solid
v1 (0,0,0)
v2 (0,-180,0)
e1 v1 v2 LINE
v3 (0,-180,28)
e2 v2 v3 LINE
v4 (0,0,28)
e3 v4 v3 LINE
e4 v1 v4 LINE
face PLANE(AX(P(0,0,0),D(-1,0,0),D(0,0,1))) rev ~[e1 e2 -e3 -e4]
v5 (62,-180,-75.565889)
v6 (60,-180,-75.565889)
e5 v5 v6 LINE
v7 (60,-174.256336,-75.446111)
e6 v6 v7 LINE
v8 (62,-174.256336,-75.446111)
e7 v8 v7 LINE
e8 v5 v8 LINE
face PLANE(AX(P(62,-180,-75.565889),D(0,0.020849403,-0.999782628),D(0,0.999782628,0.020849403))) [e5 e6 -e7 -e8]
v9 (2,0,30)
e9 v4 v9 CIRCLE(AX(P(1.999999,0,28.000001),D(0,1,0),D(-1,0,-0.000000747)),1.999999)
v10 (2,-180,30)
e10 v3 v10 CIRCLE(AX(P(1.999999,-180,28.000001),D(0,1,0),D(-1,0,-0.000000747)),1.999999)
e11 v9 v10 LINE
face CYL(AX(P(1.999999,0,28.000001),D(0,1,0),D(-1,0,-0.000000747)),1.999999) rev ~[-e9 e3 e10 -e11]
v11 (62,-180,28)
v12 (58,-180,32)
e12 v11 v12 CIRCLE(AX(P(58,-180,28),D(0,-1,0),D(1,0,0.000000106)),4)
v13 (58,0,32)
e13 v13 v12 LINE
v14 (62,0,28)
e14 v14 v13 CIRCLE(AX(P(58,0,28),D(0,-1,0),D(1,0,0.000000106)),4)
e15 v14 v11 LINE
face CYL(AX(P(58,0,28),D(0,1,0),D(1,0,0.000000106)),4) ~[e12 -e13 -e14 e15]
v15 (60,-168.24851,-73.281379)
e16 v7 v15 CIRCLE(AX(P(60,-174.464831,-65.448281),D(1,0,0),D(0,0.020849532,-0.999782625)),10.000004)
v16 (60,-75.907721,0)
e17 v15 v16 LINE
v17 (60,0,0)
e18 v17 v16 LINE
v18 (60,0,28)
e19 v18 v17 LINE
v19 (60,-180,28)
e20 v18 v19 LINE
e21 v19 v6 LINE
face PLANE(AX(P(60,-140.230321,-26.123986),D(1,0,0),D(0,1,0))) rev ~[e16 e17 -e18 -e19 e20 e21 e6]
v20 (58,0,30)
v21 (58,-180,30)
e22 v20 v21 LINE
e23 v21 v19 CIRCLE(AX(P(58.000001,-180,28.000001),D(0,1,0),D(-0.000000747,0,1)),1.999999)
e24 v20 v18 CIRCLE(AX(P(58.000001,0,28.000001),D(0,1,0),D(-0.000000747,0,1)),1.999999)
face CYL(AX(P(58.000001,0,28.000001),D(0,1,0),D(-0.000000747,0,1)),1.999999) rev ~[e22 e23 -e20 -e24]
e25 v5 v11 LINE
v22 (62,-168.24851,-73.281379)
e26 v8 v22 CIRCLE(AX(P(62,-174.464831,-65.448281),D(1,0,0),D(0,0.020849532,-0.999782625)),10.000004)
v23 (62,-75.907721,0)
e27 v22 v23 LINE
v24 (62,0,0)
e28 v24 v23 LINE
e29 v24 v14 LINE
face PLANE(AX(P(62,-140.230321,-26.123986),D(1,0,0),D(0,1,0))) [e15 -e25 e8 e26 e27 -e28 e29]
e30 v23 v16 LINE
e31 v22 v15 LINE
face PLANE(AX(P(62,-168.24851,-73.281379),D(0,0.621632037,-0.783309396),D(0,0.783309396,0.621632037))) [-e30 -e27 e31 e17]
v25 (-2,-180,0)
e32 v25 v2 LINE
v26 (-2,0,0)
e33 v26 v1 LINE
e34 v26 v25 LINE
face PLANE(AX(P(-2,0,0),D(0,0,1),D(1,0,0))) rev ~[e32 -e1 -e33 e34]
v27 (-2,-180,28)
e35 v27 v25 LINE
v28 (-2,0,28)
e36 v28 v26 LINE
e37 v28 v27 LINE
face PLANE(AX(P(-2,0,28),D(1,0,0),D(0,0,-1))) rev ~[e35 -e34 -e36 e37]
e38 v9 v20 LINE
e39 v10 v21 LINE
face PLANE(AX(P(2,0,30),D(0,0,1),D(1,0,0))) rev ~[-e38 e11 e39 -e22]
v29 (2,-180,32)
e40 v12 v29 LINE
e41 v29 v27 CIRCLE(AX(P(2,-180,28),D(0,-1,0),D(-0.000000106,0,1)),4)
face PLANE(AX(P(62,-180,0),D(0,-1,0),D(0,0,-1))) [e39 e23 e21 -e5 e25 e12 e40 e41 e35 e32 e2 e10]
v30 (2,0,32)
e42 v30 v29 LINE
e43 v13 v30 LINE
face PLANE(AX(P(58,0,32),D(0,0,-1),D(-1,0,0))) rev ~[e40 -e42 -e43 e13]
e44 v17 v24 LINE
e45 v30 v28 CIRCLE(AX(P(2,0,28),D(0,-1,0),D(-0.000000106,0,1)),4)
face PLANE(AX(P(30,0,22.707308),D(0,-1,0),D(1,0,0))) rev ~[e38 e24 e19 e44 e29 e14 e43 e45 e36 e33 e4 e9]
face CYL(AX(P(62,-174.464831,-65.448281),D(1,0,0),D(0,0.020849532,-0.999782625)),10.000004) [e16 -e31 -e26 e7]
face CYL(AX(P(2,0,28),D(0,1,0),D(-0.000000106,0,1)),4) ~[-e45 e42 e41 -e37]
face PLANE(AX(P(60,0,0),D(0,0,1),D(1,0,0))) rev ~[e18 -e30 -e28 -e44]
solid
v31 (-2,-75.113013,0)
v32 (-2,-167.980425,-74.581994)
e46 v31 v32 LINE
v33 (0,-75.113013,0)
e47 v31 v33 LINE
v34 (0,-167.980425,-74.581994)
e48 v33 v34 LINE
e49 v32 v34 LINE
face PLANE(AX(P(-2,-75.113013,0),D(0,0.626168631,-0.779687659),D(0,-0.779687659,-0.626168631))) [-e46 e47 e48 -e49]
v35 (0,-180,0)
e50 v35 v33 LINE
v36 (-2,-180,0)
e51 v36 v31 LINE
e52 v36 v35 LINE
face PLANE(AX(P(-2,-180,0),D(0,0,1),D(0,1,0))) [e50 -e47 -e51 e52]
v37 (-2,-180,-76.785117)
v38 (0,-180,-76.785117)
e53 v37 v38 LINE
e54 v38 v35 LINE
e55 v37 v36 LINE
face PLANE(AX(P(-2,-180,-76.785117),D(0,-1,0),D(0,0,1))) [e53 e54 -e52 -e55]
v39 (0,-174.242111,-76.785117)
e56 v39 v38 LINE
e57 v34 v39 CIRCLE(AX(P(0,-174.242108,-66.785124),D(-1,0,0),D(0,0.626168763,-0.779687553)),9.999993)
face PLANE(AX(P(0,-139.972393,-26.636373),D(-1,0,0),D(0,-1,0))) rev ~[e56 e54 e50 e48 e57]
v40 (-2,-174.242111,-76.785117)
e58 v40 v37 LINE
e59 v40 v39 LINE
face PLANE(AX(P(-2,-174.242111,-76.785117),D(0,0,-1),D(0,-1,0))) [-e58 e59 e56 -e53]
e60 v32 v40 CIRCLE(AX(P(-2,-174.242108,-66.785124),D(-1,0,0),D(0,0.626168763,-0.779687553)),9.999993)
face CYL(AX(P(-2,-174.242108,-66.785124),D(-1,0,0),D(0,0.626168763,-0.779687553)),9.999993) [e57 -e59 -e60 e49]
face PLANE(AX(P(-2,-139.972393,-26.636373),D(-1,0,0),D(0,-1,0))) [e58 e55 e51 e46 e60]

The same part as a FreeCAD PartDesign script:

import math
import FreeCAD as App
import Part
import Sketcher
Q = App.Units.Quantity

doc = App.newDocument("Part")
body = doc.addObject("PartDesign::Body", "Body")

# Sketch on XZ plane
sketch1 = body.newObject("Sketcher::SketchObject", "Sketch")
sketch1.AttachmentSupport = (doc.getObject("XZ_Plane"), [""])
sketch1.MapMode = "FlatFace"
sketch1.addGeometry(Part.LineSegment(App.Vector(-2, 0, 0), App.Vector(0, 0, 0)), False)
sketch1.addGeometry(Part.LineSegment(App.Vector(0, 0, 0), App.Vector(0, 28, 0)), False)
sketch1.addGeometry(Part.ArcOfCircle(Part.Circle(App.Vector(2, 28, 0), App.Vector(0, 0, 1), 2), math.radians(90), math.radians(180)), False)
sketch1.addGeometry(Part.LineSegment(App.Vector(2, 30, 0), App.Vector(58, 30, 0)), False)
sketch1.addGeometry(Part.ArcOfCircle(Part.Circle(App.Vector(58, 28, 0), App.Vector(0, 0, 1), 2), math.radians(0), math.radians(90)), False)
sketch1.addGeometry(Part.LineSegment(App.Vector(60, 28, 0), App.Vector(60, 0, 0)), False)
sketch1.addGeometry(Part.LineSegment(App.Vector(60, 0, 0), App.Vector(62, 0, 0)), False)
sketch1.addGeometry(Part.LineSegment(App.Vector(62, 0, 0), App.Vector(62, 28, 0)), False)
sketch1.addGeometry(Part.ArcOfCircle(Part.Circle(App.Vector(58, 28, 0), App.Vector(0, 0, 1), 4), math.radians(0), math.radians(90)), False)
sketch1.addGeometry(Part.LineSegment(App.Vector(58, 32, 0), App.Vector(2, 32, 0)), False)
sketch1.addGeometry(Part.ArcOfCircle(Part.Circle(App.Vector(2, 28, 0), App.Vector(0, 0, 1), 4), math.radians(90), math.radians(180)), False)
sketch1.addGeometry(Part.LineSegment(App.Vector(-2, 28, 0), App.Vector(-2, 0, 0)), False)
sketch1.addConstraint(Sketcher.Constraint("Coincident", 0, 2, 1, 1))
sketch1.addConstraint(Sketcher.Constraint("Tangent", 1, 2, 2, 2))
sketch1.addConstraint(Sketcher.Constraint("Tangent", 2, 1, 3, 1))
sketch1.addConstraint(Sketcher.Constraint("Tangent", 3, 2, 4, 2))
sketch1.addConstraint(Sketcher.Constraint("Tangent", 4, 1, 5, 1))
sketch1.addConstraint(Sketcher.Constraint("Coincident", 5, 2, 6, 1))
sketch1.addConstraint(Sketcher.Constraint("Coincident", 6, 2, 7, 1))
sketch1.addConstraint(Sketcher.Constraint("Tangent", 7, 2, 8, 1))
sketch1.addConstraint(Sketcher.Constraint("Tangent", 8, 2, 9, 1))
sketch1.addConstraint(Sketcher.Constraint("Tangent", 9, 2, 10, 1))
sketch1.addConstraint(Sketcher.Constraint("Tangent", 10, 2, 11, 1))
sketch1.addConstraint(Sketcher.Constraint("Coincident", 11, 2, 0, 1))
sketch1.addConstraint(Sketcher.Constraint("Horizontal", 0))
sketch1.addConstraint(Sketcher.Constraint("Vertical", 1))
sketch1.addConstraint(Sketcher.Constraint("Horizontal", 3))
sketch1.addConstraint(Sketcher.Constraint("Vertical", 5))
sketch1.addConstraint(Sketcher.Constraint("Horizontal", 6))
sketch1.addConstraint(Sketcher.Constraint("Vertical", 7))
sketch1.addConstraint(Sketcher.Constraint("Horizontal", 9))
sketch1.addConstraint(Sketcher.Constraint("Vertical", 11))
sketch1.addConstraint(Sketcher.Constraint("Coincident", 0, 2, -1, 1))
sketch1.addConstraint(Sketcher.Constraint("Coincident", 8, 3, 4, 3))
sketch1.addConstraint(Sketcher.Constraint("Coincident", 10, 3, 2, 3))
sketch1.addConstraint(Sketcher.Constraint("Equal", 2, 4))
sketch1.addConstraint(Sketcher.Constraint("PointOnObject", 5, 2, -1))
sketch1.addConstraint(Sketcher.Constraint("Radius", 2, Q("1.999999 mm")))
sketch1.addConstraint(Sketcher.Constraint("Radius", 8, Q("4 mm")))
sketch1.addConstraint(Sketcher.Constraint("DistanceX", 3, 1, 3, 2, Q("56 mm")))
sketch1.addConstraint(Sketcher.Constraint("DistanceY", 1, 1, 1, 2, Q("28 mm")))
pad1 = body.newObject("PartDesign::Pad", "Pad")
pad1.Profile = sketch1
pad1.Length = 180

# Sketch on YZ plane
sketch2 = body.newObject("Sketcher::SketchObject", "Sketch001")
sketch2.AttachmentSupport = (doc.getObject("YZ_Plane"), [""])
sketch2.MapMode = "FlatFace"
sketch2.AttachmentOffset = App.Placement(App.Vector(0, 0, 62), App.Rotation())
sketch2.addGeometry(Part.LineSegment(App.Vector(-76, 0, 0), App.Vector(-180, 0, 0)), False)
sketch2.addGeometry(Part.LineSegment(App.Vector(-180, 0, 0), App.Vector(-180, -76, 0)), False)
sketch2.addGeometry(Part.LineSegment(App.Vector(-180, -76, 0), App.Vector(-174, -75, 0)), False)
sketch2.addGeometry(Part.ArcOfCircle(Part.Circle(App.Vector(-174, -65, 0), App.Vector(0, 0, 1), 10), math.radians(-89), math.radians(-52)), False)
sketch2.addGeometry(Part.LineSegment(App.Vector(-168, -73, 0), App.Vector(-76, 0, 0)), False)
sketch2.addConstraint(Sketcher.Constraint("Coincident", 0, 2, 1, 1))
sketch2.addConstraint(Sketcher.Constraint("Coincident", 1, 2, 2, 1))
sketch2.addConstraint(Sketcher.Constraint("Tangent", 2, 2, 3, 1))
sketch2.addConstraint(Sketcher.Constraint("Tangent", 3, 2, 4, 1))
sketch2.addConstraint(Sketcher.Constraint("Coincident", 4, 2, 0, 1))
sketch2.addConstraint(Sketcher.Constraint("Horizontal", 0))
sketch2.addConstraint(Sketcher.Constraint("Vertical", 1))
sketch2.addConstraint(Sketcher.Constraint("PointOnObject", 0, 2, -1))
sketch2.addConstraint(Sketcher.Constraint("DistanceX", 0, 2, -1, 1, Q("180 mm")))
sketch2.addConstraint(Sketcher.Constraint("Radius", 3, Q("10.000004 mm")))
sketch2.addConstraint(Sketcher.Constraint("DistanceX", 0, 2, 0, 1, Q("104.092279 mm")))
sketch2.addConstraint(Sketcher.Constraint("DistanceY", 1, 2, 1, 1, Q("75.565889 mm")))
sketch2.addConstraint(Sketcher.Constraint("DistanceY", 3, 2, 3, 3, Q("7.833098 mm")))
sketch2.addConstraint(Sketcher.Constraint("Distance", 4, Q("117.885461 mm")))
pad2 = body.newObject("PartDesign::Pad", "Pad001")
pad2.Profile = sketch2
pad2.Length = 2
pad2.Reversed = True
body2 = doc.addObject("PartDesign::Body", "Body001")

# Sketch on YZ plane
sketch3 = body2.newObject("Sketcher::SketchObject", "Sketch002")
sketch3.AttachmentSupport = (doc.getObject("YZ_Plane001"), [""])
sketch3.MapMode = "FlatFace"
sketch3.AttachmentOffset = App.Placement(App.Vector(0, 0, -2), App.Rotation())
sketch3.addGeometry(Part.LineSegment(App.Vector(-180, -77, 0), App.Vector(-180, 0, 0)), False)
sketch3.addGeometry(Part.LineSegment(App.Vector(-180, 0, 0), App.Vector(-75, 0, 0)), False)
sketch3.addGeometry(Part.LineSegment(App.Vector(-75, 0, 0), App.Vector(-168, -75, 0)), False)
sketch3.addGeometry(Part.ArcOfCircle(Part.Circle(App.Vector(-174, -67, 0), App.Vector(0, 0, 1), 10), math.radians(-90), math.radians(-51)), False)
sketch3.addGeometry(Part.LineSegment(App.Vector(-174, -77, 0), App.Vector(-180, -77, 0)), False)
sketch3.addConstraint(Sketcher.Constraint("Coincident", 0, 2, 1, 1))
sketch3.addConstraint(Sketcher.Constraint("Coincident", 1, 2, 2, 1))
sketch3.addConstraint(Sketcher.Constraint("Tangent", 2, 2, 3, 2))
sketch3.addConstraint(Sketcher.Constraint("Tangent", 3, 1, 4, 1))
sketch3.addConstraint(Sketcher.Constraint("Coincident", 4, 2, 0, 1))
sketch3.addConstraint(Sketcher.Constraint("Vertical", 0))
sketch3.addConstraint(Sketcher.Constraint("Horizontal", 1))
sketch3.addConstraint(Sketcher.Constraint("Horizontal", 4))
sketch3.addConstraint(Sketcher.Constraint("PointOnObject", 0, 2, -1))
sketch3.addConstraint(Sketcher.Constraint("DistanceX", 0, 2, -1, 1, Q("180 mm")))
sketch3.addConstraint(Sketcher.Constraint("Radius", 3, Q("9.999993 mm")))
sketch3.addConstraint(Sketcher.Constraint("DistanceX", 4, 2, 4, 1, Q("5.757889 mm")))
sketch3.addConstraint(Sketcher.Constraint("DistanceX", 3, 1, 1, 2, Q("99.129098 mm")))
sketch3.addConstraint(Sketcher.Constraint("Distance", 2, Q("119.10848 mm")))
pad3 = body2.newObject("PartDesign::Pad", "Pad002")
pad3.Profile = sketch3
pad3.Length = 2

doc.recompute()
